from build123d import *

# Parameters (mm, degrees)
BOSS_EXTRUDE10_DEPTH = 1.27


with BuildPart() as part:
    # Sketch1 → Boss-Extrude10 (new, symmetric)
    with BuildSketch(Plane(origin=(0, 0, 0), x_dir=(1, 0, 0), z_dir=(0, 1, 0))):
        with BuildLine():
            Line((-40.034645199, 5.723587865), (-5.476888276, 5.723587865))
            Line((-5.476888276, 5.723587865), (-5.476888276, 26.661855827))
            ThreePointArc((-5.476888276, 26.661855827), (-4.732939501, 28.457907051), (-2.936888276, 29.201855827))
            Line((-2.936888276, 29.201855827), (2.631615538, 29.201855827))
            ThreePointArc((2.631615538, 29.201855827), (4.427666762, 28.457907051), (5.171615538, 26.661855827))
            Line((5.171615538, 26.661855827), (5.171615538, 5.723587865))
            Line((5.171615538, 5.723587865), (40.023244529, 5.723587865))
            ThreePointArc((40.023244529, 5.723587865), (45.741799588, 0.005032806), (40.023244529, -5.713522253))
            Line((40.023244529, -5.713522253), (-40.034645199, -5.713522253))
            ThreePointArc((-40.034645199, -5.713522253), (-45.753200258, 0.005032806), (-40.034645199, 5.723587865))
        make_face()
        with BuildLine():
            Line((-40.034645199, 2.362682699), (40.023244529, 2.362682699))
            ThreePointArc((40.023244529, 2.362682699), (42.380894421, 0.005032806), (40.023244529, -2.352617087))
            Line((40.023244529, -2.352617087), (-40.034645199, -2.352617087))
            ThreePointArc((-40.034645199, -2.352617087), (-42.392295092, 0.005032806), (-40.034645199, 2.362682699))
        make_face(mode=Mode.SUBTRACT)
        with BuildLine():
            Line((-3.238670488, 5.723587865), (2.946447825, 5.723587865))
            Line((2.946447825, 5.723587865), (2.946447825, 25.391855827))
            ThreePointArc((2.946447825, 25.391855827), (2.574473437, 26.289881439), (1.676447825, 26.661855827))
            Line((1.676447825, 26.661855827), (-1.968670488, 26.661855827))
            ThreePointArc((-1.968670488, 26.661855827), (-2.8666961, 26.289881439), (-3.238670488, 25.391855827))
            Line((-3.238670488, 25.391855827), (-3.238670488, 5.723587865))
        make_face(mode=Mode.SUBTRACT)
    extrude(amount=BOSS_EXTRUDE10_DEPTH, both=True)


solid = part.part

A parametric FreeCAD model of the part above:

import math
import FreeCAD as App
import Part
import Sketcher
Q = App.Units.Quantity

doc = App.newDocument("Part")
body = doc.addObject("PartDesign::Body", "Body")

sketch1 = body.newObject("Sketcher::SketchObject", "Sketch")
sketch1.AttachmentSupport = (doc.getObject("XZ_Plane"), [""])
sketch1.MapMode = "FlatFace"
sketch1.addGeometry(Part.LineSegment(App.Vector(-5.5, -5.7, 0), App.Vector(-40, -5.7, 0)), False)
sketch1.addGeometry(Part.ArcOfCircle(Part.Circle(App.Vector(-40, 0, 0), App.Vector(0, 0, 1), 5.7), math.radians(90), math.radians(270)), False)
sketch1.addGeometry(Part.LineSegment(App.Vector(-40, 5.7, 0), App.Vector(40, 5.7, 0)), False)
sketch1.addGeometry(Part.ArcOfCircle(Part.Circle(App.Vector(40, 0, 0), App.Vector(0, 0, 1), 5.7), math.radians(-90), math.radians(90)), False)
sketch1.addGeometry(Part.LineSegment(App.Vector(40, -5.7, 0), App.Vector(5.2, -5.7, 0)), False)
sketch1.addGeometry(Part.LineSegment(App.Vector(5.2, -5.7, 0), App.Vector(5.2, -26.7, 0)), False)
sketch1.addGeometry(Part.ArcOfCircle(Part.Circle(App.Vector(2.6, -26.7, 0), App.Vector(0, 0, 1), 2.5), math.radians(-90), math.radians(0)), False)
sketch1.addGeometry(Part.LineSegment(App.Vector(2.6, -29.2, 0), App.Vector(-2.9, -29.2, 0)), False)
sketch1.addGeometry(Part.ArcOfCircle(Part.Circle(App.Vector(-2.9, -26.7, 0), App.Vector(0, 0, 1), 2.5), math.radians(180), math.radians(270)), False)
sketch1.addGeometry(Part.LineSegment(App.Vector(-5.5, -26.7, 0), App.Vector(-5.5, -5.7, 0)), False)
sketch1.addGeometry(Part.LineSegment(App.Vector(-40, -2.4, 0), App.Vector(40, -2.4, 0)), False)
sketch1.addGeometry(Part.ArcOfCircle(Part.Circle(App.Vector(40, 0, 0), App.Vector(0, 0, 1), 2.4), math.radians(-90), math.radians(90)), False)
sketch1.addGeometry(Part.LineSegment(App.Vector(40, 2.4, 0), App.Vector(-40, 2.4, 0)), False)
sketch1.addGeometry(Part.ArcOfCircle(Part.Circle(App.Vector(-40, 0, 0), App.Vector(0, 0, 1), 2.4), math.radians(90), math.radians(270)), False)
sketch1.addGeometry(Part.LineSegment(App.Vector(-3.2, -5.7, 0), App.Vector(-3.2, -25.4, 0)), False)
sketch1.addGeometry(Part.ArcOfCircle(Part.Circle(App.Vector(-2, -25.4, 0), App.Vector(0, 0, 1), 1.3), math.radians(180), math.radians(270)), False)
sketch1.addGeometry(Part.LineSegment(App.Vector(-2, -26.7, 0), App.Vector(1.7, -26.7, 0)), False)
sketch1.addGeometry(Part.ArcOfCircle(Part.Circle(App.Vector(1.7, -25.4, 0), App.Vector(0, 0, 1), 1.3), math.radians(-90), math.radians(0)), False)
sketch1.addGeometry(Part.LineSegment(App.Vector(2.9, -25.4, 0), App.Vector(2.9, -5.7, 0)), False)
sketch1.addGeometry(Part.LineSegment(App.Vector(2.9, -5.7, 0), App.Vector(-3.2, -5.7, 0)), False)
sketch1.addConstraint(Sketcher.Constraint("Tangent", 0, 2, 1, 2))
sketch1.addConstraint(Sketcher.Constraint("Tangent", 1, 1, 2, 1))
sketch1.addConstraint(Sketcher.Constraint("Tangent", 2, 2, 3, 2))
sketch1.addConstraint(Sketcher.Constraint("Tangent", 3, 1, 4, 1))
sketch1.addConstraint(Sketcher.Constraint("Coincident", 4, 2, 5, 1))
sketch1.addConstraint(Sketcher.Constraint("Tangent", 5, 2, 6, 2))
sketch1.addConstraint(Sketcher.Constraint("Tangent", 6, 1, 7, 1))
sketch1.addConstraint(Sketcher.Constraint("Tangent", 7, 2, 8, 2))
sketch1.addConstraint(Sketcher.Constraint("Tangent", 8, 1, 9, 1))
sketch1.addConstraint(Sketcher.Constraint("Coincident", 9, 2, 0, 1))
sketch1.addConstraint(Sketcher.Constraint("Tangent", 10, 2, 11, 1))
sketch1.addConstraint(Sketcher.Constraint("Tangent", 11, 2, 12, 1))
sketch1.addConstraint(Sketcher.Constraint("Tangent", 12, 2, 13, 1))
sketch1.addConstraint(Sketcher.Constraint("Tangent", 13, 2, 10, 1))
sketch1.addConstraint(Sketcher.Constraint("Tangent", 14, 2, 15, 1))
sketch1.addConstraint(Sketcher.Constraint("Tangent", 15, 2, 16, 1))
sketch1.addConstraint(Sketcher.Constraint("Tangent", 16, 2, 17, 1))
sketch1.addConstraint(Sketcher.Constraint("Tangent", 17, 2, 18, 1))
sketch1.addConstraint(Sketcher.Constraint("Coincident", 18, 2, 19, 1))
sketch1.addConstraint(Sketcher.Constraint("Coincident", 19, 2, 14, 1))
sketch1.addConstraint(Sketcher.Constraint("Horizontal", 0))
sketch1.addConstraint(Sketcher.Constraint("Horizontal", 2))
sketch1.addConstraint(Sketcher.Constraint("Horizontal", 4))
sketch1.addConstraint(Sketcher.Constraint("Vertical", 5))
sketch1.addConstraint(Sketcher.Constraint("Horizontal", 7))
sketch1.addConstraint(Sketcher.Constraint("Vertical", 9))
sketch1.addConstraint(Sketcher.Constraint("Horizontal", 10))
sketch1.addConstraint(Sketcher.Constraint("Horizontal", 12))
sketch1.addConstraint(Sketcher.Constraint("Vertical", 14))
sketch1.addConstraint(Sketcher.Constraint("Horizontal", 16))
sketch1.addConstraint(Sketcher.Constraint("Vertical", 18))
sketch1.addConstraint(Sketcher.Constraint("Horizontal", 19))
sketch1.addConstraint(Sketcher.Constraint("Coincident", 11, 3, 3, 3))
sketch1.addConstraint(Sketcher.Constraint("Coincident", 13, 3, 1, 3))
sketch1.addConstraint(Sketcher.Constraint("Equal", 6, 8))
sketch1.addConstraint(Sketcher.Constraint("Equal", 15, 17))
sketch1.addConstraint(Sketcher.Constraint("Horizontal", 8, 1, 15, 2))
sketch1.addConstraint(Sketcher.Constraint("Horizontal", 9, 2, 18, 2))
sketch1.addConstraint(Sketcher.Constraint("Radius", 6, Q("0.1 in")))
sketch1.addConstraint(Sketcher.Constraint("Radius", 15, Q("0.05 in")))
sketch1.addConstraint(Sketcher.Constraint("Radius", 11, 2.35765))
sketch1.addConstraint(Sketcher.Constraint("Radius", 1, 5.718555))
sketch1.addConstraint(Sketcher.Constraint("DistanceX", 2, 1, 2, 2, 80.05789))
sketch1.addConstraint(Sketcher.Constraint("DistanceX", 4, 2, 4, 1, 34.851629))
sketch1.addConstraint(Sketcher.Constraint("DistanceX", 16, 1, 16, 2, 3.645118))
sketch1.addConstraint(Sketcher.Constraint("DistanceX", 0, 2, 0, 1, 34.557757))
sketch1.addConstraint(Sketcher.Constraint("DistanceY", 5, 2, 5, 1, 20.938268))
sketch1.addConstraint(Sketcher.Constraint("DistanceX", 8, 3, -1, 1, 2.936888))
sketch1.addConstraint(Sketcher.Constraint("DistanceX", 15, 3, -1, 1, 1.96867))
sketch1.addConstraint(Sketcher.Constraint("DistanceY", 1, 3, -1, 1, 0.005033))
pad1 = body.newObject("PartDesign::Pad", "Pad")
pad1.Profile = sketch1
pad1.Length = Q("0.1 in")
pad1.Midplane = True

doc.recompute()
